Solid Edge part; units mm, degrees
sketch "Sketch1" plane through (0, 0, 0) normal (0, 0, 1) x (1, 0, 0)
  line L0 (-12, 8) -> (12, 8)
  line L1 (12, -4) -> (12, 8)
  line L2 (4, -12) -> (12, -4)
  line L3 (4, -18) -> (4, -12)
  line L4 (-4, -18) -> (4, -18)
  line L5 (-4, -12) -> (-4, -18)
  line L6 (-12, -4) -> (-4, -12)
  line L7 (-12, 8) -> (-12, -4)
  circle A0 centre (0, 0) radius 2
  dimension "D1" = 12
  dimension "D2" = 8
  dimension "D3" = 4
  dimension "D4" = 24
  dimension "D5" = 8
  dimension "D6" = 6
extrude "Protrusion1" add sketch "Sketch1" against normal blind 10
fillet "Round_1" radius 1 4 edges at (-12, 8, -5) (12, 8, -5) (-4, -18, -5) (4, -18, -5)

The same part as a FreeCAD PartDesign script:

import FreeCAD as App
import Part
import Sketcher

V = App.Vector
Q = App.Units.Quantity


def edges_at(feature, points):
    """Names of the edges that pass closest to the given points."""
    edges = feature.Shape.Edges
    near = lambda p: min(range(len(edges)), key=lambda i: edges[i].distToShape(Part.Vertex(*p))[0])
    return sorted({f"Edge{near(p) + 1}" for p in points})


def add_polygon(sketch, points):
    """Adds a closed chain of lines whose ends are joined by coincident constraints."""
    first, n = sketch.GeometryCount, len(points)
    for a, b in zip(points, points[1:] + points[:1]):
        sketch.addGeometry(Part.LineSegment(App.Vector(*a, 0), App.Vector(*b, 0)), False)
    for i in range(n):
        sketch.addConstraint(Sketcher.Constraint("Coincident", first + i, 2, first + (i + 1) % n, 1))

doc = App.newDocument("Part")
body = doc.addObject("PartDesign::Body", "Body")

sketch1 = body.newObject("Sketcher::SketchObject", "Sketch")
sketch1.AttachmentSupport = (doc.getObject("XY_Plane"), [""])
sketch1.MapMode = "FlatFace"
add_polygon(sketch1, [(12, 8), (-12, 8), (-12, -4), (-4, -12), (-4, -18), (4, -18), (4, -12), (12, -4)])
sketch1.addGeometry(Part.Circle(V(0, 0, 0), V(0, 0, 1), 2), False)
sketch1.addConstraint(Sketcher.Constraint("Horizontal", 0))
sketch1.addConstraint(Sketcher.Constraint("Vertical", 1))
sketch1.addConstraint(Sketcher.Constraint("Vertical", 3))
sketch1.addConstraint(Sketcher.Constraint("Horizontal", 4))
sketch1.addConstraint(Sketcher.Constraint("Vertical", 5))
sketch1.addConstraint(Sketcher.Constraint("Vertical", 7))
sketch1.addConstraint(Sketcher.Constraint("Coincident", 8, 3, -1, 1))
sketch1.addConstraint(Sketcher.Constraint("Symmetric", 2, 2, 5, 2, -2))
sketch1.addConstraint(Sketcher.Constraint("Symmetric", 1, 2, 6, 2, -2))
sketch1.addConstraint(Sketcher.Constraint("Perpendicular", 2, 6))
sketch1.addConstraint(Sketcher.Constraint("Diameter", 8, Q("4 mm")))
sketch1.addConstraint(Sketcher.Constraint("DistanceY", 1, 2, 1, 1, Q("12 mm")))
sketch1.addConstraint(Sketcher.Constraint("DistanceX", 0, 2, -1, 1, Q("12 mm")))
sketch1.addConstraint(Sketcher.Constraint("DistanceY", 1, 2, -1, 1, Q("4 mm")))
sketch1.addConstraint(Sketcher.Constraint("DistanceX", 2, 2, -1, 1, Q("4 mm")))
sketch1.addConstraint(Sketcher.Constraint("DistanceY", 3, 2, 3, 1, Q("6 mm")))
pad1 = body.newObject("PartDesign::Pad", "Pad")
pad1.Profile = sketch1
pad1.Length = 10
pad1.Reversed = True
doc.recompute()

fillet = body.newObject("PartDesign::Fillet", "Fillet")
fillet.Base = (pad1, edges_at(pad1, [
    (-12, 8, -5),
    (12, 8, -5),
    (-4, -18, -5),
    (4, -18, -5),
]))
fillet.Radius = 1

doc.recompute()
